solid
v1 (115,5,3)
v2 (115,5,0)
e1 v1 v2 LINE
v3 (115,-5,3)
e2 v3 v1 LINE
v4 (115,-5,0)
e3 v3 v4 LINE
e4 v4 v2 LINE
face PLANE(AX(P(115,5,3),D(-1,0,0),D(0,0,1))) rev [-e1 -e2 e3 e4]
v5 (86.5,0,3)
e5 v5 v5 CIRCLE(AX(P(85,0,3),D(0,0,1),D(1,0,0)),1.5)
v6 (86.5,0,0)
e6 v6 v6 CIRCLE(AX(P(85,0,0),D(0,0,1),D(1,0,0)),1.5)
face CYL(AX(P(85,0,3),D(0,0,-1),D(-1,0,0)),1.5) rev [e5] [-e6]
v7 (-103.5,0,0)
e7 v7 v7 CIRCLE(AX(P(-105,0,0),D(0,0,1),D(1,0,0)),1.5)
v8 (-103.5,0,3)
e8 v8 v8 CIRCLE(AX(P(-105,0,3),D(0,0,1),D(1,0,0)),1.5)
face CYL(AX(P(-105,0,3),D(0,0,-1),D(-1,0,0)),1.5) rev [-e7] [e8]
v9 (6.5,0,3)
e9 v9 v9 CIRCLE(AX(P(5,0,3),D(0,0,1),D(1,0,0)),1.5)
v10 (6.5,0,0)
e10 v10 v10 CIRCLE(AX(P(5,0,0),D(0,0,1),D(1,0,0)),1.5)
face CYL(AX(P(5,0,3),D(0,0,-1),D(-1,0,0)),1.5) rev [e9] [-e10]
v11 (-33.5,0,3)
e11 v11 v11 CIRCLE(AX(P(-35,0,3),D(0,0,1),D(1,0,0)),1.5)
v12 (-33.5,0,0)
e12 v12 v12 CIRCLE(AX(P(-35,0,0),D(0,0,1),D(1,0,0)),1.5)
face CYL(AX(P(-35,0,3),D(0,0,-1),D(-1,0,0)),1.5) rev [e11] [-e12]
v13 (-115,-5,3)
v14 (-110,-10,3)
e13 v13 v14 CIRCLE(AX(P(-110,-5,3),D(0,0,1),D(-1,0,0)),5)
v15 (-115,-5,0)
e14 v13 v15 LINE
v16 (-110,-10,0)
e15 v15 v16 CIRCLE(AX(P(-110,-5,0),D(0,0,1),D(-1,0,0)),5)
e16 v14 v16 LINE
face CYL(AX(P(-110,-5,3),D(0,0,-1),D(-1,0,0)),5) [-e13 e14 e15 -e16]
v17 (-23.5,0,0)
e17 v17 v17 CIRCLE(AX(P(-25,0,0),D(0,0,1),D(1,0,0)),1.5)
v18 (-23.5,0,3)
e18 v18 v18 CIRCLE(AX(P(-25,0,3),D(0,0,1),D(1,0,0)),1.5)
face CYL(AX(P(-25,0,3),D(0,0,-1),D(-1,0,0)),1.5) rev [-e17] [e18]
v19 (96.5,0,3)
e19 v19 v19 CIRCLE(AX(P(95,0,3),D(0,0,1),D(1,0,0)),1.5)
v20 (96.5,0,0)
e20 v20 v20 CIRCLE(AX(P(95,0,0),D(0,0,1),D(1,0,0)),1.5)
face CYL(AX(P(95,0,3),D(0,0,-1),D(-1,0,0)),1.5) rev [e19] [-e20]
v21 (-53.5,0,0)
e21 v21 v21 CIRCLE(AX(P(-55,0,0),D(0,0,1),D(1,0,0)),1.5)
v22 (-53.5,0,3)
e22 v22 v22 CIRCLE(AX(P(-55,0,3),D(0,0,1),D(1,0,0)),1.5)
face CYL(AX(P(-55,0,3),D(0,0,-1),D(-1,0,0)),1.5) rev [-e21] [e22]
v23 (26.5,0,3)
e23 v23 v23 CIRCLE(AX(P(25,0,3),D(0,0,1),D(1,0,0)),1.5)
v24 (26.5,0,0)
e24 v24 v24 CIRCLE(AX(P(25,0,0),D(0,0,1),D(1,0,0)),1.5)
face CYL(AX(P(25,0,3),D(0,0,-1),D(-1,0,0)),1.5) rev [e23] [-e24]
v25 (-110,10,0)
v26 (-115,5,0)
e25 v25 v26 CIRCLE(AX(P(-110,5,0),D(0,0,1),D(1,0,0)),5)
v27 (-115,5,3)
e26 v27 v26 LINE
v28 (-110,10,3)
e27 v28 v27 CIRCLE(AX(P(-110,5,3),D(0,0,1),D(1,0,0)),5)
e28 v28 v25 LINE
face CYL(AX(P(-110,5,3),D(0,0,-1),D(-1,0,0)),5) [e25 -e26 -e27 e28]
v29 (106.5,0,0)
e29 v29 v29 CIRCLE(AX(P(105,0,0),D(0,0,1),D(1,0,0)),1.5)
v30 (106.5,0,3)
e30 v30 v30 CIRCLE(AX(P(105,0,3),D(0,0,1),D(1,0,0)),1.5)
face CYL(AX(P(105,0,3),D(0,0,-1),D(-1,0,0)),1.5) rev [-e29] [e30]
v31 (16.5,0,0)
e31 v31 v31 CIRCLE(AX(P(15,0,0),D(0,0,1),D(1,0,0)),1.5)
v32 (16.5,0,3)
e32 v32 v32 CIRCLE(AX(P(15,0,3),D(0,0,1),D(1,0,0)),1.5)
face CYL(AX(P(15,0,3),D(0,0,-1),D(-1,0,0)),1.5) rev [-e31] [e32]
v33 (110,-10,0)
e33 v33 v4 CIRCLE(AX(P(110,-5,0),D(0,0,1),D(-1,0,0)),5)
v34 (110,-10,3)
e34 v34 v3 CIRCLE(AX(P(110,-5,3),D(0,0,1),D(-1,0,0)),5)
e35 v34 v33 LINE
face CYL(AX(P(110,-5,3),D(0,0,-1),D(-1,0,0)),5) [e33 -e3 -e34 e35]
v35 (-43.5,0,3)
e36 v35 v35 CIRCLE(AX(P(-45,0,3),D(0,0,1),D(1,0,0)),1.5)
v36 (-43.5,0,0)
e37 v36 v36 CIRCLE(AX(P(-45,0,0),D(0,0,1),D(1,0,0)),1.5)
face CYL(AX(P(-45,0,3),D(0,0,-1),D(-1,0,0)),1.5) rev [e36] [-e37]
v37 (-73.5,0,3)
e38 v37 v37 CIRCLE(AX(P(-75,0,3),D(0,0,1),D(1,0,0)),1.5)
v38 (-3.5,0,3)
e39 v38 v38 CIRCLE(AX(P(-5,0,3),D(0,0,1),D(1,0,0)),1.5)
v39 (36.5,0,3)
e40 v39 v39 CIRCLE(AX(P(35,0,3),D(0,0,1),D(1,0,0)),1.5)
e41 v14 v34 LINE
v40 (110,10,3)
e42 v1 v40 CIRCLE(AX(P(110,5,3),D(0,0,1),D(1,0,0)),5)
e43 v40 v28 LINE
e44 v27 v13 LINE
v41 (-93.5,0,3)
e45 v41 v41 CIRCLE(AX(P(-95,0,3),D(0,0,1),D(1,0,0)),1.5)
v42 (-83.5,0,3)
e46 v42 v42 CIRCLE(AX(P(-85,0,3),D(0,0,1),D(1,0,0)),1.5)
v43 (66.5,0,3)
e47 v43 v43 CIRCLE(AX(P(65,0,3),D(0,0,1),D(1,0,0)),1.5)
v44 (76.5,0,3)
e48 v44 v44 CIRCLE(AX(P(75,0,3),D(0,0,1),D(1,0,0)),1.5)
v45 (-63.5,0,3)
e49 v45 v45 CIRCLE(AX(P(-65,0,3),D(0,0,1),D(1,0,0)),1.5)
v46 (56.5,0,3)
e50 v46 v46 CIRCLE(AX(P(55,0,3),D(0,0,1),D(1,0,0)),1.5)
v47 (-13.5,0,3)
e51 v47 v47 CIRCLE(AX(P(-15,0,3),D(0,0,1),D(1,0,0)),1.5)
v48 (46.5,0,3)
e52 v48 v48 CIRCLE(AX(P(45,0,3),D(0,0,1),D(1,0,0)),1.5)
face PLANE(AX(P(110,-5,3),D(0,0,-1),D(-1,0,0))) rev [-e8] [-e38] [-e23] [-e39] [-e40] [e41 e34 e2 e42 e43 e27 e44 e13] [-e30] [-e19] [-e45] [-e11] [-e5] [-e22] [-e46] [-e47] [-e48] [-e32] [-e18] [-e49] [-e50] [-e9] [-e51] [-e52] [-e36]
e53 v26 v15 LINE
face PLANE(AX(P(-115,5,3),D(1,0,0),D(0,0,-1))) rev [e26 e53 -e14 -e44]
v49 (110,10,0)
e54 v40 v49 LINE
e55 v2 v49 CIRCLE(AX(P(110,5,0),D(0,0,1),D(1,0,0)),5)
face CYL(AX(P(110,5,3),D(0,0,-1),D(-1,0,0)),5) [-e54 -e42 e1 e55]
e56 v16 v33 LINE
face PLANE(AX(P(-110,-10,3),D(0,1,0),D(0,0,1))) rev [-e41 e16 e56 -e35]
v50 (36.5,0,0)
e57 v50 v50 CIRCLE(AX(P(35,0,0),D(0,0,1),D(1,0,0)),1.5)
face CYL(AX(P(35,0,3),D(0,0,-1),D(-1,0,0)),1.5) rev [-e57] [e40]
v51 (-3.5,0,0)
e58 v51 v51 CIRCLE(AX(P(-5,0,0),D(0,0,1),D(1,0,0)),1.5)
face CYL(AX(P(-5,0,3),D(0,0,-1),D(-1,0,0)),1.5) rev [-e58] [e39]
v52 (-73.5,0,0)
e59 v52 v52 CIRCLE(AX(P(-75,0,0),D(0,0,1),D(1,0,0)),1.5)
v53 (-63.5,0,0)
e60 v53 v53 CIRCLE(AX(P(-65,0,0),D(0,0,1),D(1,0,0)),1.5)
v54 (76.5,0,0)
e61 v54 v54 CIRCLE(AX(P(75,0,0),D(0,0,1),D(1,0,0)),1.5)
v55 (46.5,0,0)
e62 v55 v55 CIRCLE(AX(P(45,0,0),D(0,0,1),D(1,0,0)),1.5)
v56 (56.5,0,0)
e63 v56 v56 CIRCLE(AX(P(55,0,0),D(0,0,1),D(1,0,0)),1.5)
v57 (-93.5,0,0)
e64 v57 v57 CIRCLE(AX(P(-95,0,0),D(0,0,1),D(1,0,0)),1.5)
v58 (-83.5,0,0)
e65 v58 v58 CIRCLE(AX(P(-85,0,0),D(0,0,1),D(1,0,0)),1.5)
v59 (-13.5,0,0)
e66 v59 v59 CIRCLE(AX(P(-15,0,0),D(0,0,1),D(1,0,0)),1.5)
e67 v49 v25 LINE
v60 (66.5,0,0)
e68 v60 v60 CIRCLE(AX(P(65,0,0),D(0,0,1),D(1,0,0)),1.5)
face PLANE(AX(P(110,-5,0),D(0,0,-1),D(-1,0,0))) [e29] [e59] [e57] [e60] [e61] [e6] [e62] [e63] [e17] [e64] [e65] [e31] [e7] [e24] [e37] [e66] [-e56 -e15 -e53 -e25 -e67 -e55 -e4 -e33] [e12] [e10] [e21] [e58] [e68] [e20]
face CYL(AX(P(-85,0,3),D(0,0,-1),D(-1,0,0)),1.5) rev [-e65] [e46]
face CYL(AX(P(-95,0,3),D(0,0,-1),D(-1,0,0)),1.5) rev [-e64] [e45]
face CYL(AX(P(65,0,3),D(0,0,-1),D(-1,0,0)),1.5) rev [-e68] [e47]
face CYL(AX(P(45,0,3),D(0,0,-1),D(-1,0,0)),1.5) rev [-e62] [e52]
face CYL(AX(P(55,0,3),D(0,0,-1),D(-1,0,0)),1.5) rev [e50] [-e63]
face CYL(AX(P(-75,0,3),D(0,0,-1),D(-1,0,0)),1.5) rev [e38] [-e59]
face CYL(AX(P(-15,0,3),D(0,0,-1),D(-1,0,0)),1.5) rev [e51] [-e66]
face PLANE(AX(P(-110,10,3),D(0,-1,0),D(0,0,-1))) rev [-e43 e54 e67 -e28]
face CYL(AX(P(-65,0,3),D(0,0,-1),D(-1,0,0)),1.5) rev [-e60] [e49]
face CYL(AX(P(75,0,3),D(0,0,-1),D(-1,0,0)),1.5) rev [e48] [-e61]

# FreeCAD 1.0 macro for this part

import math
import FreeCAD as App
import Part
import Sketcher
from FreeCAD import Vector
Q = App.Units.Quantity

doc = App.newDocument("Part")
body = doc.addObject("PartDesign::Body", "Body")

# Sketch on XY plane
sketch1 = doc.addObject("Sketcher::SketchObject", "Sketch")
body.addObject(sketch1)
sketch1.AttachmentSupport = (doc.XY_Plane, [""])
sketch1.MapMode = "FlatFace"
sketch1.addGeometry([
    Part.LineSegment(Vector(110, 10, 0), Vector(-110, 10, 0)),  # 0
    Part.ArcOfCircle(Part.Circle(Vector(-110, 5, 0), Vector(0, 0, 1), 5), math.radians(90), math.radians(180)),  # 1
    Part.LineSegment(Vector(-115, 5, 0), Vector(-115, -5, 0)),  # 2
    Part.ArcOfCircle(Part.Circle(Vector(-110, -5, 0), Vector(0, 0, 1), 5), math.radians(180), math.radians(270)),  # 3
    Part.LineSegment(Vector(-110, -10, 0), Vector(110, -10, 0)),  # 4
    Part.ArcOfCircle(Part.Circle(Vector(110, -5, 0), Vector(0, 0, 1), 5), math.radians(-90), math.radians(0)),  # 5
    Part.LineSegment(Vector(115, -5, 0), Vector(115, 5, 0)),  # 6
    Part.ArcOfCircle(Part.Circle(Vector(110, 5, 0), Vector(0, 0, 1), 5), math.radians(0), math.radians(90)),  # 7
    Part.Circle(Vector(105, 0, 0), Vector(0, 0, 1), 1.5),  # 8
    Part.Circle(Vector(95, 0, 0), Vector(0, 0, 1), 1.5),  # 9
    Part.Circle(Vector(85, 0, 0), Vector(0, 0, 1), 1.5),  # 10
    Part.Circle(Vector(75, 0, 0), Vector(0, 0, 1), 1.5),  # 11
    Part.Circle(Vector(65, 0, 0), Vector(0, 0, 1), 1.5),  # 12
    Part.Circle(Vector(55, 0, 0), Vector(0, 0, 1), 1.5),  # 13
    Part.Circle(Vector(45, 0, 0), Vector(0, 0, 1), 1.5),  # 14
    Part.Circle(Vector(35, 0, 0), Vector(0, 0, 1), 1.5),  # 15
    Part.Circle(Vector(25, 0, 0), Vector(0, 0, 1), 1.5),  # 16
    Part.Circle(Vector(15, 0, 0), Vector(0, 0, 1), 1.5),  # 17
    Part.Circle(Vector(5, 0, 0), Vector(0, 0, 1), 1.5),  # 18
    Part.Circle(Vector(-5, 0, 0), Vector(0, 0, 1), 1.5),  # 19
    Part.Circle(Vector(-15, 0, 0), Vector(0, 0, 1), 1.5),  # 20
    Part.Circle(Vector(-25, 0, 0), Vector(0, 0, 1), 1.5),  # 21
    Part.Circle(Vector(-35, 0, 0), Vector(0, 0, 1), 1.5),  # 22
    Part.Circle(Vector(-45, 0, 0), Vector(0, 0, 1), 1.5),  # 23
    Part.Circle(Vector(-55, 0, 0), Vector(0, 0, 1), 1.5),  # 24
    Part.Circle(Vector(-65, 0, 0), Vector(0, 0, 1), 1.5),  # 25
    Part.Circle(Vector(-75, 0, 0), Vector(0, 0, 1), 1.5),  # 26
    Part.Circle(Vector(-85, 0, 0), Vector(0, 0, 1), 1.5),  # 27
    Part.Circle(Vector(-95, 0, 0), Vector(0, 0, 1), 1.5),  # 28
    Part.Circle(Vector(-105, 0, 0), Vector(0, 0, 1), 1.5),  # 29
], False)
sketch1.addConstraint([
    Sketcher.Constraint("Tangent", 0, 2, 1, 1),
    Sketcher.Constraint("Tangent", 1, 2, 2, 1),
    Sketcher.Constraint("Tangent", 2, 2, 3, 1),
    Sketcher.Constraint("Tangent", 3, 2, 4, 1),
    Sketcher.Constraint("Tangent", 4, 2, 5, 1),
    Sketcher.Constraint("Tangent", 5, 2, 6, 1),
    Sketcher.Constraint("Tangent", 6, 2, 7, 1),
    Sketcher.Constraint("Tangent", 7, 2, 0, 1),
    Sketcher.Constraint("Horizontal", 0),
    Sketcher.Constraint("Vertical", 2),
    Sketcher.Constraint("Horizontal", 4),
    Sketcher.Constraint("Vertical", 6),
    Sketcher.Constraint("Equal", 1, 3),
    Sketcher.Constraint("Equal", 3, 5),
    Sketcher.Constraint("Equal", 5, 7),
    Sketcher.Constraint("Equal", 8, 9),
    Sketcher.Constraint("Equal", 9, 10),
    Sketcher.Constraint("Equal", 10, 11),
    Sketcher.Constraint("Equal", 11, 12),
    Sketcher.Constraint("Equal", 12, 13),
    Sketcher.Constraint("Equal", 13, 14),
    Sketcher.Constraint("Equal", 14, 15),
    Sketcher.Constraint("Equal", 15, 16),
    Sketcher.Constraint("Equal", 16, 17),
    Sketcher.Constraint("Equal", 17, 18),
    Sketcher.Constraint("Equal", 18, 19),
    Sketcher.Constraint("Equal", 19, 20),
    Sketcher.Constraint("Equal", 20, 21),
    Sketcher.Constraint("Equal", 21, 22),
    Sketcher.Constraint("Equal", 22, 23),
    Sketcher.Constraint("Equal", 23, 24),
    Sketcher.Constraint("Equal", 24, 25),
    Sketcher.Constraint("Equal", 25, 26),
    Sketcher.Constraint("Equal", 26, 27),
    Sketcher.Constraint("Equal", 27, 28),
    Sketcher.Constraint("Equal", 28, 29),
    Sketcher.Constraint("Symmetric", 1, 3, 5, 3, -1, 1),
    Sketcher.Constraint("Symmetric", 18, 3, 19, 3, -1, 1),
    Sketcher.Constraint("Symmetric", 17, 3, 20, 3, -1, 1),
    Sketcher.Constraint("Symmetric", 16, 3, 21, 3, -1, 1),
    Sketcher.Constraint("Symmetric", 15, 3, 22, 3, -1, 1),
    Sketcher.Constraint("Symmetric", 14, 3, 23, 3, -1, 1),
    Sketcher.Constraint("Symmetric", 13, 3, 24, 3, -1, 1),
    Sketcher.Constraint("Symmetric", 12, 3, 25, 3, -1, 1),
    Sketcher.Constraint("Symmetric", 11, 3, 26, 3, -1, 1),
    Sketcher.Constraint("Symmetric", 10, 3, 27, 3, -1, 1),
    Sketcher.Constraint("Symmetric", 9, 3, 28, 3, -1, 1),
    Sketcher.Constraint("Symmetric", 8, 3, 29, 3, -1, 1),
    Sketcher.Constraint("PointOnObject", 8, 3, -1),
    Sketcher.Constraint("PointOnObject", 9, 3, -1),
    Sketcher.Constraint("PointOnObject", 10, 3, -1),
    Sketcher.Constraint("PointOnObject", 11, 3, -1),
    Sketcher.Constraint("PointOnObject", 12, 3, -1),
    Sketcher.Constraint("PointOnObject", 13, 3, -1),
    Sketcher.Constraint("PointOnObject", 14, 3, -1),
    Sketcher.Constraint("PointOnObject", 15, 3, -1),
    Sketcher.Constraint("PointOnObject", 16, 3, -1),
    Sketcher.Constraint("PointOnObject", 17, 3, -1),
    Sketcher.Constraint("PointOnObject", 18, 3, -1),
    Sketcher.Constraint("Diameter", 8, Q("3 mm")),
    Sketcher.Constraint("Radius", 1, Q("5 mm")),
    Sketcher.Constraint("DistanceX", 0, 2, 0, 1, Q("220 mm")),
    Sketcher.Constraint("DistanceY", 2, 2, 2, 1, Q("10 mm")),
    Sketcher.Constraint("DistanceX", -1, 1, 8, 3, Q("105 mm")),
    Sketcher.Constraint("DistanceX", -1, 1, 9, 3, Q("95 mm")),
    Sketcher.Constraint("DistanceX", -1, 1, 10, 3, Q("85 mm")),
    Sketcher.Constraint("DistanceX", -1, 1, 11, 3, Q("75 mm")),
    Sketcher.Constraint("DistanceX", -1, 1, 12, 3, Q("65 mm")),
    Sketcher.Constraint("DistanceX", -1, 1, 13, 3, Q("55 mm")),
    Sketcher.Constraint("DistanceX", -1, 1, 14, 3, Q("45 mm")),
    Sketcher.Constraint("DistanceX", -1, 1, 15, 3, Q("35 mm")),
    Sketcher.Constraint("DistanceX", -1, 1, 16, 3, Q("25 mm")),
    Sketcher.Constraint("DistanceX", -1, 1, 17, 3, Q("15 mm")),
    Sketcher.Constraint("DistanceX", -1, 1, 18, 3, Q("5 mm")),
])
pad1 = doc.addObject("PartDesign::Pad", "Pad")
body.addObject(pad1)
pad1.Profile = sketch1
pad1.Length = 3

doc.recompute()
